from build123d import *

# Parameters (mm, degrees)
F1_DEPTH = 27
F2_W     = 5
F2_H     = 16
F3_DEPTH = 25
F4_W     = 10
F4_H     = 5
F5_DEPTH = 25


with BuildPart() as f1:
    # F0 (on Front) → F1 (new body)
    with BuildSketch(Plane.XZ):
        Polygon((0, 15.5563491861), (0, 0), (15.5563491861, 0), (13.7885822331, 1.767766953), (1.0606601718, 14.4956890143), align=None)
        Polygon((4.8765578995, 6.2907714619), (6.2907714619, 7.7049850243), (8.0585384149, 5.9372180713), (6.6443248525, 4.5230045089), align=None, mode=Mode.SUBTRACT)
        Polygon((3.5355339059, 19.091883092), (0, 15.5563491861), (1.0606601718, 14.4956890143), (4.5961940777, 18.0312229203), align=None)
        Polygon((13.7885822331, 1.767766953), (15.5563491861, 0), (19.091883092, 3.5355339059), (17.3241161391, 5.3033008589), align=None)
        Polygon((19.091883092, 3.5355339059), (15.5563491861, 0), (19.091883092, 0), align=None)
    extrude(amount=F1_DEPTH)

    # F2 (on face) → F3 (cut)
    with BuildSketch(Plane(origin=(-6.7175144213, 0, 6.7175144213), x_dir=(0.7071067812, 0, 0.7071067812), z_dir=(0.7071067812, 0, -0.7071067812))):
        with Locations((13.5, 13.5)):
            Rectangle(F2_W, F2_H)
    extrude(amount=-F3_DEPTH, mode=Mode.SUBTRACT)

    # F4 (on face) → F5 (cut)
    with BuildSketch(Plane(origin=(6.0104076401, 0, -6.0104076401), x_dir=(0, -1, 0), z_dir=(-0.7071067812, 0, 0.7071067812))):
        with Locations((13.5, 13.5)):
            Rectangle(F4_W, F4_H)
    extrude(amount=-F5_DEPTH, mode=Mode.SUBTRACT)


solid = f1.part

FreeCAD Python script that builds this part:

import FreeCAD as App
import Part
import Sketcher

V = App.Vector
Q = App.Units.Quantity

doc = App.newDocument("Part")
body = doc.addObject("PartDesign::Body", "Body")

# Sketch on XZ plane
sketch1 = body.newObject("Sketcher::SketchObject", "Sketch")
sketch1.AttachmentSupport = (doc.getObject("XZ_Plane"), [""])
sketch1.MapMode = "FlatFace"
sketch1.addGeometry([
    Part.LineSegment(V(0, 15.6, 0), V(0, 0, 0)),  # 0
    Part.LineSegment(V(0, 0, 0), V(19.1, 0, 0)),  # 1
    Part.LineSegment(V(19.1, 0, 0), V(19.1, 3.5, 0)),  # 2
    Part.LineSegment(V(19.1, 3.5, 0), V(17.3, 5.3, 0)),  # 3
    Part.LineSegment(V(17.3, 5.3, 0), V(13.8, 1.8, 0)),  # 4
    Part.LineSegment(V(13.8, 1.8, 0), V(1.1, 14.5, 0)),  # 5
    Part.LineSegment(V(1.1, 14.5, 0), V(4.6, 18, 0)),  # 6
    Part.LineSegment(V(4.6, 18, 0), V(3.5, 19.1, 0)),  # 7
    Part.LineSegment(V(3.5, 19.1, 0), V(0, 15.6, 0)),  # 8
    Part.LineSegment(V(6.6, 4.5, 0), V(4.9, 6.3, 0)),  # 9
    Part.LineSegment(V(4.9, 6.3, 0), V(6.3, 7.7, 0)),  # 10
    Part.LineSegment(V(6.3, 7.7, 0), V(8.1, 5.9, 0)),  # 11
    Part.LineSegment(V(8.1, 5.9, 0), V(6.6, 4.5, 0)),  # 12
], False)
sketch1.addConstraint([
    Sketcher.Constraint("Coincident", 0, 2, 1, 1),
    Sketcher.Constraint("Coincident", 1, 2, 2, 1),
    Sketcher.Constraint("Coincident", 2, 2, 3, 1),
    Sketcher.Constraint("Coincident", 3, 2, 4, 1),
    Sketcher.Constraint("Coincident", 4, 2, 5, 1),
    Sketcher.Constraint("Coincident", 5, 2, 6, 1),
    Sketcher.Constraint("Coincident", 6, 2, 7, 1),
    Sketcher.Constraint("Coincident", 7, 2, 8, 1),
    Sketcher.Constraint("Coincident", 8, 2, 0, 1),
    Sketcher.Constraint("Coincident", 9, 2, 10, 1),
    Sketcher.Constraint("Coincident", 10, 2, 11, 1),
    Sketcher.Constraint("Coincident", 11, 2, 12, 1),
    Sketcher.Constraint("Coincident", 12, 2, 9, 1),
    Sketcher.Constraint("Vertical", 0),
    Sketcher.Constraint("Horizontal", 1),
    Sketcher.Constraint("Vertical", 2),
    Sketcher.Constraint("Coincident", 0, 2, -1, 1),
    Sketcher.Constraint("Perpendicular", 3, 4),
    Sketcher.Constraint("Perpendicular", 4, 5),
    Sketcher.Constraint("Perpendicular", 5, 6),
    Sketcher.Constraint("Perpendicular", 6, 7),
    Sketcher.Constraint("Perpendicular", 7, 8),
    Sketcher.Constraint("Perpendicular", 8, 9),
    Sketcher.Constraint("Perpendicular", 9, 10),
    Sketcher.Constraint("Perpendicular", 10, 11),
    Sketcher.Constraint("Perpendicular", 11, 12),
    Sketcher.Constraint("Equal", 4, 6),
    Sketcher.Constraint("Equal", 6, 8),
    Sketcher.Constraint("Equal", 3, 9),
    Sketcher.Constraint("Angle", 3, Q("135 deg")),
    Sketcher.Constraint("Distance", 4, 5.0),
    Sketcher.Constraint("Distance", 5, 18.0),
    Sketcher.Constraint("Distance", 10, 2.0),
    Sketcher.Constraint("Distance", 3, 2.5),
    Sketcher.Constraint("Distance", 7, 1.5),
    Sketcher.Constraint("DistanceY", 0, 2, 0, 1, 15.556349),
    Sketcher.Constraint("DistanceY", -1, 1, 9, 2, 6.290771),
    Sketcher.Constraint("DistanceX", -1, 1, 10, 2, 6.290771),
])
pad1 = body.newObject("PartDesign::Pad", "Pad")
pad1.Profile = sketch1
pad1.Length = 27

# Sketch on an angled plane
sketch2 = body.newObject("Sketcher::SketchObject", "Sketch001")
sketch2.Placement = App.Placement(V(-6.717514, 0, 6.717514), App.Rotation(V(0.707106781, 0, 0.707106781), V(0, -0.999999999, 0), V(0.707106781, 0, -0.707106781), "ZXY"))
sketch2.addGeometry([
    Part.LineSegment(V(11, 21.5, 0), V(11, 5.5, 0)),
    Part.LineSegment(V(11, 5.5, 0), V(16, 5.5, 0)),
    Part.LineSegment(V(16, 5.5, 0), V(16, 21.5, 0)),
    Part.LineSegment(V(16, 21.5, 0), V(11, 21.5, 0)),
], False)
sketch2.addConstraint([
    Sketcher.Constraint("Coincident", 0, 2, 1, 1),
    Sketcher.Constraint("Coincident", 1, 2, 2, 1),
    Sketcher.Constraint("Coincident", 2, 2, 3, 1),
    Sketcher.Constraint("Coincident", 3, 2, 0, 1),
    Sketcher.Constraint("Vertical", 0),
    Sketcher.Constraint("Horizontal", 1),
    Sketcher.Constraint("Vertical", 2),
    Sketcher.Constraint("Horizontal", 3),
    Sketcher.Constraint("DistanceX", 1, 1, 1, 2, 5.0),
    Sketcher.Constraint("DistanceY", 0, 2, 0, 1, 16.0),
    Sketcher.Constraint("DistanceX", -1, 1, 0, 2, 11.0),
    Sketcher.Constraint("DistanceY", -1, 1, 0, 2, 5.5),
])
pocket1 = body.newObject("PartDesign::Pocket", "Pocket")
pocket1.Profile = sketch2
pocket1.Length = 25

# Sketch on an angled plane
sketch3 = body.newObject("Sketcher::SketchObject", "Sketch002")
sketch3.Placement = App.Placement(V(6.010408, 0, -6.010408), App.Rotation(V(0, -1, 0), V(0.707106781, 0, 0.707106781), V(-0.707106781, 0, 0.707106781), "ZXY"))
sketch3.addGeometry([
    Part.LineSegment(V(8.5, 16, 0), V(8.5, 11, 0)),
    Part.LineSegment(V(8.5, 11, 0), V(18.5, 11, 0)),
    Part.LineSegment(V(18.5, 11, 0), V(18.5, 16, 0)),
    Part.LineSegment(V(18.5, 16, 0), V(8.5, 16, 0)),
], False)
sketch3.addConstraint([
    Sketcher.Constraint("Coincident", 0, 2, 1, 1),
    Sketcher.Constraint("Coincident", 1, 2, 2, 1),
    Sketcher.Constraint("Coincident", 2, 2, 3, 1),
    Sketcher.Constraint("Coincident", 3, 2, 0, 1),
    Sketcher.Constraint("Vertical", 0),
    Sketcher.Constraint("Horizontal", 1),
    Sketcher.Constraint("Vertical", 2),
    Sketcher.Constraint("Horizontal", 3),
    Sketcher.Constraint("DistanceX", 1, 1, 1, 2, 10.0),
    Sketcher.Constraint("DistanceY", 0, 2, 0, 1, 5.0),
    Sketcher.Constraint("DistanceY", -1, 1, 0, 2, 11.0),
    Sketcher.Constraint("DistanceX", -1, 1, 0, 2, 8.5),
])
pocket2 = body.newObject("PartDesign::Pocket", "Pocket001")
pocket2.Profile = sketch3
pocket2.Length = 25

doc.recompute()
